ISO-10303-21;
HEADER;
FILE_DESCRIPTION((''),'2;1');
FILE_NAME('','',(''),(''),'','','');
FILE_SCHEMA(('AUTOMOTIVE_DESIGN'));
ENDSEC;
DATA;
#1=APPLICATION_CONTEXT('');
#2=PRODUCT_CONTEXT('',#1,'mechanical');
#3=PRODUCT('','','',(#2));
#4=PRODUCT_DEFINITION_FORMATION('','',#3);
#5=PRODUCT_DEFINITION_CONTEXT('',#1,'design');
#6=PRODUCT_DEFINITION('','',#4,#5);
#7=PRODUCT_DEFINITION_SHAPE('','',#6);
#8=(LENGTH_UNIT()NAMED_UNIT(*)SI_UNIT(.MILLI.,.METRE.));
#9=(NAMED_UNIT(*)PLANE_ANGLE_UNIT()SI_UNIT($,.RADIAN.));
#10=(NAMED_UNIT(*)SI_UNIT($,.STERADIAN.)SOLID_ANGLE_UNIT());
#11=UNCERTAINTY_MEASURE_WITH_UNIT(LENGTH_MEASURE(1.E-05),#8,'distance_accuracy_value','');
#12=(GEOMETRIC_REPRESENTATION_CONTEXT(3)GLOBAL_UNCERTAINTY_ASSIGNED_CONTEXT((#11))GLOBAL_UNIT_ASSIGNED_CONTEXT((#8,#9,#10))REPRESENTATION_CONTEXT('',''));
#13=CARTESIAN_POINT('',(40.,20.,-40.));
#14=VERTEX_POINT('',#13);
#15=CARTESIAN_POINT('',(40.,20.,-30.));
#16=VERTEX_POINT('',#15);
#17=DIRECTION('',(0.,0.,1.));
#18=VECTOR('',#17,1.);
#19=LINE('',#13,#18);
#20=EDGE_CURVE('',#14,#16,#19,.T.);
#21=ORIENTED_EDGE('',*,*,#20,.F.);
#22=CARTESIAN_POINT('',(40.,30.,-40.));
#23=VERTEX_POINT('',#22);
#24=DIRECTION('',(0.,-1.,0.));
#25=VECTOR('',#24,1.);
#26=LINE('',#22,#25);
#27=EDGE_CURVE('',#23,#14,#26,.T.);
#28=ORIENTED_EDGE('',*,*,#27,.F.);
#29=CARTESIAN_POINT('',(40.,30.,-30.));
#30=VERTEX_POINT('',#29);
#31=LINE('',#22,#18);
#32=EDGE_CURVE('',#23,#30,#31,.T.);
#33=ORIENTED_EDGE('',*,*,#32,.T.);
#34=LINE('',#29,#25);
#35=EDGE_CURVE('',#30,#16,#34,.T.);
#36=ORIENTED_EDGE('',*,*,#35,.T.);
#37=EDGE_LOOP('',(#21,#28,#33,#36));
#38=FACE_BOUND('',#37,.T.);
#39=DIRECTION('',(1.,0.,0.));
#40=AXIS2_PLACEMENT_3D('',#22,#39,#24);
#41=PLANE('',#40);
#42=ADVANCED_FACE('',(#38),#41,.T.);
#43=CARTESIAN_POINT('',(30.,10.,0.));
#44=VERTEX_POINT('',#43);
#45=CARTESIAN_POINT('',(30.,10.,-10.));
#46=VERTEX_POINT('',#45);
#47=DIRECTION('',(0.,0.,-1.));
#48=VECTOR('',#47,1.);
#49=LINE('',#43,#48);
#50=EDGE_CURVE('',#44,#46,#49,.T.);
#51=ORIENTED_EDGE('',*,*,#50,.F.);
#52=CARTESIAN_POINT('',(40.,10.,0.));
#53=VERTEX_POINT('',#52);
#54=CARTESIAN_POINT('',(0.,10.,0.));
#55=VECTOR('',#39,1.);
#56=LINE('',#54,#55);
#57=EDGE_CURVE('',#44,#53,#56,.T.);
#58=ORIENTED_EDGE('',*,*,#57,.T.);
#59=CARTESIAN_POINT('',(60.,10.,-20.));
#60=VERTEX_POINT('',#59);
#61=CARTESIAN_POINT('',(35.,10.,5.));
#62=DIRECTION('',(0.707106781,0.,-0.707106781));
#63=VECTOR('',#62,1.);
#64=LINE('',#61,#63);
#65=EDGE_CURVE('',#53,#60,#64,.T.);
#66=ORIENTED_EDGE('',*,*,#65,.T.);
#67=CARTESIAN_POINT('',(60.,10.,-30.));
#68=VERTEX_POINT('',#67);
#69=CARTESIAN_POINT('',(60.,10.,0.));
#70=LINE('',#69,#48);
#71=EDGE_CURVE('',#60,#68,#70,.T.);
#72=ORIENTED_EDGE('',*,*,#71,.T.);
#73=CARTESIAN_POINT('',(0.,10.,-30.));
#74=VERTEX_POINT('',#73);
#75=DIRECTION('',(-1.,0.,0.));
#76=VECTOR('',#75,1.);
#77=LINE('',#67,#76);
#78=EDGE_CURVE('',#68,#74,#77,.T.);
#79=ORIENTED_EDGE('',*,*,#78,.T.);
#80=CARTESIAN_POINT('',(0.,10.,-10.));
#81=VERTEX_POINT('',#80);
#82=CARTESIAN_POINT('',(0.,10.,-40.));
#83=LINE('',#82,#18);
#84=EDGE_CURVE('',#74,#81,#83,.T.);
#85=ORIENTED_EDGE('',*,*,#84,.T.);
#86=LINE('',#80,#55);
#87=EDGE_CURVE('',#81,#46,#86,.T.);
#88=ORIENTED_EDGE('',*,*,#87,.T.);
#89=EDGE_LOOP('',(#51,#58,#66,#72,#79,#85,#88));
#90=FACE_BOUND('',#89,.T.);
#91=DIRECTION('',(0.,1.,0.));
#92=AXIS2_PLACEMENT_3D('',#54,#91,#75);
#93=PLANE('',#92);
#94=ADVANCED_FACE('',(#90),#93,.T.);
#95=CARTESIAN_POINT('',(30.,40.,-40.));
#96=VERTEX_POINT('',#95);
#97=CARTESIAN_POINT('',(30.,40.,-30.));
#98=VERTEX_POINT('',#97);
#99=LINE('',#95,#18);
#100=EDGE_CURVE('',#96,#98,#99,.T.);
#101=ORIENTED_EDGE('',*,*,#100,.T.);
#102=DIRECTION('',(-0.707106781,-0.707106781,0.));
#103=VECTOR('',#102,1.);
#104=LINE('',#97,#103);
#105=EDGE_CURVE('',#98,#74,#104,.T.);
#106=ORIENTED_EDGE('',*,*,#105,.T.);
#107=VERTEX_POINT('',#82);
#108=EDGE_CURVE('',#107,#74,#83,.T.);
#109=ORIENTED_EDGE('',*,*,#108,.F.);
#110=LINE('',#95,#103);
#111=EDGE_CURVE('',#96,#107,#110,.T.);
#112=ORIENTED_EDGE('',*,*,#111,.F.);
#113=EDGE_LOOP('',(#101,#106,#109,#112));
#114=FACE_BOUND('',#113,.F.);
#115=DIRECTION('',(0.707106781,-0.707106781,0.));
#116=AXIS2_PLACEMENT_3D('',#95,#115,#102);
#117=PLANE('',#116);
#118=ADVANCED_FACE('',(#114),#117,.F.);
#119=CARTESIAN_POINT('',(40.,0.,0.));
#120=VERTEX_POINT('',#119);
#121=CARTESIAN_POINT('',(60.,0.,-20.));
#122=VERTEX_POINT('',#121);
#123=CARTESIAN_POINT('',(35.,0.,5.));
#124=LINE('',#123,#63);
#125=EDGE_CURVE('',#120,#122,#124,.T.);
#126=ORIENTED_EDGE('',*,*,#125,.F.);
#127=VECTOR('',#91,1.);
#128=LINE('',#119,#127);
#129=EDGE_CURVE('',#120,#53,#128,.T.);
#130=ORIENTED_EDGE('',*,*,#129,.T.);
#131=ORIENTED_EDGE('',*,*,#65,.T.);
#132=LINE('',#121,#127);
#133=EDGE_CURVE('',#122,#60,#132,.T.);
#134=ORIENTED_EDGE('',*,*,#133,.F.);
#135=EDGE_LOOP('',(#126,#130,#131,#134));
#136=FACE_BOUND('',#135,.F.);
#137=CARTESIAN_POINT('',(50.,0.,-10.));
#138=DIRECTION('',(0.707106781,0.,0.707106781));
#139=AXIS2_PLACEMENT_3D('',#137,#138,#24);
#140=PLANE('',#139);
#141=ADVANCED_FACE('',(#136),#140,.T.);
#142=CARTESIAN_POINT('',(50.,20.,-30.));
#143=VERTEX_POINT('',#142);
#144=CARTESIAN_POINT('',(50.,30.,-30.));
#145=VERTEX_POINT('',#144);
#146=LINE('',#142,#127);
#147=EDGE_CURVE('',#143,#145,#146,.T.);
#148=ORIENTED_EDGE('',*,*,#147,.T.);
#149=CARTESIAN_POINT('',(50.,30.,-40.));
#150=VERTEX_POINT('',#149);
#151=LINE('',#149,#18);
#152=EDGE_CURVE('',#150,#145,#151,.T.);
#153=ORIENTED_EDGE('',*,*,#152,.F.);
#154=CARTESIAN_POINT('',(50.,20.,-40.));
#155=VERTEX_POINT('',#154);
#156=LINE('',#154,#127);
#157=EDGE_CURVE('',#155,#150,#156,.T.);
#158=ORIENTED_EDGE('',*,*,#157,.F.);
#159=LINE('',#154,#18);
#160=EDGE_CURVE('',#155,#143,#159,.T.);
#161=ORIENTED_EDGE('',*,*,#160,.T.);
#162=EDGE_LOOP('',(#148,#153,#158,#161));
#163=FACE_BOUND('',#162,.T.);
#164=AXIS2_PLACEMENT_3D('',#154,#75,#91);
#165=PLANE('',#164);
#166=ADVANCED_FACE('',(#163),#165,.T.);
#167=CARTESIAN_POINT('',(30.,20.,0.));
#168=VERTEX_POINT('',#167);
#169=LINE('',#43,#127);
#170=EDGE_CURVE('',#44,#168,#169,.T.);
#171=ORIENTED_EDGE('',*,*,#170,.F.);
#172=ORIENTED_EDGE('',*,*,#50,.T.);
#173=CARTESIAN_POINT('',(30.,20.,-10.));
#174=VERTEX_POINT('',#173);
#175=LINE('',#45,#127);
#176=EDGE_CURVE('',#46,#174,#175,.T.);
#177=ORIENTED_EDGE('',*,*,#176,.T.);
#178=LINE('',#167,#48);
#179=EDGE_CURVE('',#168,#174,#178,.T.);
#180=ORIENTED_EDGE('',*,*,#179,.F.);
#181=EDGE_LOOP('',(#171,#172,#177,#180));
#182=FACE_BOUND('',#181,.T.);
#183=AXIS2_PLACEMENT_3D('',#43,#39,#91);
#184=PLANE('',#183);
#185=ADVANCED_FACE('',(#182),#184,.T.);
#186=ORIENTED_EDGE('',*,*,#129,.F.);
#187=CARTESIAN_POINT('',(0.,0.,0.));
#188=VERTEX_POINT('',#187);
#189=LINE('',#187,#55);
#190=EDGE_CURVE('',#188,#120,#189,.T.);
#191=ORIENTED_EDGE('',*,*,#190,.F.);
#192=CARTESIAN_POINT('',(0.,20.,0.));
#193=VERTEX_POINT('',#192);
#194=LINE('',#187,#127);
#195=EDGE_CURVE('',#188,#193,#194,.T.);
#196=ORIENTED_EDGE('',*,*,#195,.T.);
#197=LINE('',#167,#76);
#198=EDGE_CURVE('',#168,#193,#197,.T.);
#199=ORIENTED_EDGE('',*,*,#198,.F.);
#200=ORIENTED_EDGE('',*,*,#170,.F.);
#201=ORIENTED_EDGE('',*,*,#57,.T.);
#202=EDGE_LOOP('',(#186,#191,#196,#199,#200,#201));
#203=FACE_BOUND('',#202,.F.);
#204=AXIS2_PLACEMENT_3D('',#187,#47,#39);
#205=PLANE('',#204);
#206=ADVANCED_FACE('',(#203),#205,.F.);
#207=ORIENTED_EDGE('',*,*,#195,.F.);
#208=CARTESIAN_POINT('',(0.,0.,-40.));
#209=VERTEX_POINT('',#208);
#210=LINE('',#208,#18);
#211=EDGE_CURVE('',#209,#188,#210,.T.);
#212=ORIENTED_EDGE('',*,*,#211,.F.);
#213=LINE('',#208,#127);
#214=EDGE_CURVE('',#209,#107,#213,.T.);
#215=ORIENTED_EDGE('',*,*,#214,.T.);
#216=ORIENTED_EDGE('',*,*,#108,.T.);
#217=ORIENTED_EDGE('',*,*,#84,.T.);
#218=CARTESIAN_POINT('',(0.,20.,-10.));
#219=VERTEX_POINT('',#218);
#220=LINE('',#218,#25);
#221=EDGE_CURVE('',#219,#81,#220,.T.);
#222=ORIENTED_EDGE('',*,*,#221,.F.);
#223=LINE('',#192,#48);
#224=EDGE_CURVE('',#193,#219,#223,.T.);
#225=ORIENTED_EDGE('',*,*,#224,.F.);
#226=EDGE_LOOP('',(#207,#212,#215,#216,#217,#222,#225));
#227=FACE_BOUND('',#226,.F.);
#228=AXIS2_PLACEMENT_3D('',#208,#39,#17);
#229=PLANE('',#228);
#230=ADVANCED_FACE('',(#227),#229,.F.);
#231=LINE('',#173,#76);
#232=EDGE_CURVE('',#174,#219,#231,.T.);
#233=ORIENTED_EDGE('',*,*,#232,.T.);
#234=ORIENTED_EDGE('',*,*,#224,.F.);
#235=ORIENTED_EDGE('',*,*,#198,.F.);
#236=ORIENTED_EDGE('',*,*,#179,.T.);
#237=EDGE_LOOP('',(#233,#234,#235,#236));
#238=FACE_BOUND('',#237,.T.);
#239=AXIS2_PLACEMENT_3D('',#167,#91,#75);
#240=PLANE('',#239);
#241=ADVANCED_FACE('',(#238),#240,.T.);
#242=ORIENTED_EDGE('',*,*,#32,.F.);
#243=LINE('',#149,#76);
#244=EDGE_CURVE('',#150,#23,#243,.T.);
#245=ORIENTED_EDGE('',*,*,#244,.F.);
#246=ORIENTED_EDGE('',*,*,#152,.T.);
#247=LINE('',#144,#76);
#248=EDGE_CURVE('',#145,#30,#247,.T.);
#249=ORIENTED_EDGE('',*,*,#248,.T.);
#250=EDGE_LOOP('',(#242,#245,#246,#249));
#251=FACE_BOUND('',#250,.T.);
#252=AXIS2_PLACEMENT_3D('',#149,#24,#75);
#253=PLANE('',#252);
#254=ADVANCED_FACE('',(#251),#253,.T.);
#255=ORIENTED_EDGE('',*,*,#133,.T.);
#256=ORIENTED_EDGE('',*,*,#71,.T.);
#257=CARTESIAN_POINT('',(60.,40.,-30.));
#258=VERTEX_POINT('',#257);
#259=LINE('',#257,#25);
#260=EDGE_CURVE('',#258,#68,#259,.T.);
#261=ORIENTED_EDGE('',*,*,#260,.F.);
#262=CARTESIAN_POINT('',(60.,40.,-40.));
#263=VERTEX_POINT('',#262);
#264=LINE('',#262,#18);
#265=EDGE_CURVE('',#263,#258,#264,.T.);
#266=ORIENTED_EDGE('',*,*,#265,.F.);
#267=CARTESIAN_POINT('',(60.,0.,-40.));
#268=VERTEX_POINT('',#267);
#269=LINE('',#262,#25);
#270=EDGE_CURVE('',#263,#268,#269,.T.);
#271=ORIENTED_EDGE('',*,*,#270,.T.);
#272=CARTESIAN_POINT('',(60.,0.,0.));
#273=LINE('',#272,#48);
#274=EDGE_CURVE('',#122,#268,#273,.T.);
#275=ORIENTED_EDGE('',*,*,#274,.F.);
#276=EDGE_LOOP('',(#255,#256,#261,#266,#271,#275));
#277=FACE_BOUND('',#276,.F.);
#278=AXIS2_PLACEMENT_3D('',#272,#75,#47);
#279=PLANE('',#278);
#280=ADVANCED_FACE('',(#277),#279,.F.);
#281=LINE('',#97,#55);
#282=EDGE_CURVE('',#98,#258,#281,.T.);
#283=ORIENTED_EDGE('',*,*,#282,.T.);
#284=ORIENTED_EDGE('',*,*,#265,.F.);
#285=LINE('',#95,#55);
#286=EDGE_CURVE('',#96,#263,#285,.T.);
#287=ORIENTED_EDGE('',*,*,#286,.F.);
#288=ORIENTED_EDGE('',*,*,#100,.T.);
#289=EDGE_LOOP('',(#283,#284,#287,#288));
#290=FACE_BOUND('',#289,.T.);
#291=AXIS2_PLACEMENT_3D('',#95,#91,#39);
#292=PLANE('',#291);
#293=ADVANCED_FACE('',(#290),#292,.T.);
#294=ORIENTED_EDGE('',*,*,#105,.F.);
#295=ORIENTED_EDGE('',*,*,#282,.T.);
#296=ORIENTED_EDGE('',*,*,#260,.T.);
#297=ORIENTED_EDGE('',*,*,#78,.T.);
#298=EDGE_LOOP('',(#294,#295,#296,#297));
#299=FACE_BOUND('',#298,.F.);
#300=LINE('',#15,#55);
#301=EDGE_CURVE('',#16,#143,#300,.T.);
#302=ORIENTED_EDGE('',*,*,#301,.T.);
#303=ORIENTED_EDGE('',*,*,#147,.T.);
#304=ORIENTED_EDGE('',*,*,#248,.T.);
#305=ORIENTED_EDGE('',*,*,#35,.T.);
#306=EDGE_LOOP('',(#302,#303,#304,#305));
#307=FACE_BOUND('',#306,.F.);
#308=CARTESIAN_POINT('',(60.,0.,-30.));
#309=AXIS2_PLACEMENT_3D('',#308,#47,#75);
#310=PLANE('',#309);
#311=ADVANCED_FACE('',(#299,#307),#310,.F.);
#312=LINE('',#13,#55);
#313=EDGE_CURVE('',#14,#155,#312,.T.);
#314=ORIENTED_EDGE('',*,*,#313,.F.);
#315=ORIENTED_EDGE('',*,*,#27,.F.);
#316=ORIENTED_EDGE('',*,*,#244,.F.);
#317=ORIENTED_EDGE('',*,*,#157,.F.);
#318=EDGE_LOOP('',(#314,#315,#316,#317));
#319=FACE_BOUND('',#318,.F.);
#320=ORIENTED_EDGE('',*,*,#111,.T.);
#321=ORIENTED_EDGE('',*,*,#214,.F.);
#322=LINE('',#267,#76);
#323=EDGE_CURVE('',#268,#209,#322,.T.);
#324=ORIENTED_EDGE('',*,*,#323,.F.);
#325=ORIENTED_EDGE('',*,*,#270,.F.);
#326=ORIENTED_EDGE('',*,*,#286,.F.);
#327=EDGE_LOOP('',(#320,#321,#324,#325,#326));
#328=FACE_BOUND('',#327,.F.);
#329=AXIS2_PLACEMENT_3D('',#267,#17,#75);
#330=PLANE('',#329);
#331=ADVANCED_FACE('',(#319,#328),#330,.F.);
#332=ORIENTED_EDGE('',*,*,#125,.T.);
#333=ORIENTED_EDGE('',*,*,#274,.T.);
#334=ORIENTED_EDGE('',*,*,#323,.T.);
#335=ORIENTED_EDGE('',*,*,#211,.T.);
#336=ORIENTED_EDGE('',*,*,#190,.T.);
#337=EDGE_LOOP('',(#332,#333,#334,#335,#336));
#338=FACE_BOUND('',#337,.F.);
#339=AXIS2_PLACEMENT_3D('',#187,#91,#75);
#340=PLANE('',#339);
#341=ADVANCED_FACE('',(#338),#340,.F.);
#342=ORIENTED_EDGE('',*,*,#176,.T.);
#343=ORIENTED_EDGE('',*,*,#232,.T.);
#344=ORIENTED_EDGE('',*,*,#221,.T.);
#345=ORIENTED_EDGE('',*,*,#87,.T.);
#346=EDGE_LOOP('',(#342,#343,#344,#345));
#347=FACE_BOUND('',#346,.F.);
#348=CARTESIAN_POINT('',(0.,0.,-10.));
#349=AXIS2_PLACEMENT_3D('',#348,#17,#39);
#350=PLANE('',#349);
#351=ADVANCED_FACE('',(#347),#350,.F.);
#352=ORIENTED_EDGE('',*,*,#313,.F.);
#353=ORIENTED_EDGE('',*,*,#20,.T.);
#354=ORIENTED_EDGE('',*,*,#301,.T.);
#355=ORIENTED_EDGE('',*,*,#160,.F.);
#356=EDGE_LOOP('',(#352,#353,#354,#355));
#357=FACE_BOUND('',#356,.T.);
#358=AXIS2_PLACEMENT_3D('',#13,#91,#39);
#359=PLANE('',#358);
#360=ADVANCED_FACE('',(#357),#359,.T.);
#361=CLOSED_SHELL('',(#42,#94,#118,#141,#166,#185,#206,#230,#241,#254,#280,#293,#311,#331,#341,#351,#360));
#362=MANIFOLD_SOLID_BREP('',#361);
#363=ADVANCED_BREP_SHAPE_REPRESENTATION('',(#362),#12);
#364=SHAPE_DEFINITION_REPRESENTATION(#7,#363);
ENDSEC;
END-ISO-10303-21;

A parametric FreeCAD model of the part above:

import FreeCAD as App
import Part
import Sketcher


def edges_at(feature, points):
    """Names of the edges that pass closest to the given points."""
    edges = feature.Shape.Edges
    near = lambda p: min(range(len(edges)), key=lambda i: edges[i].distToShape(Part.Vertex(*p))[0])
    return sorted({f"Edge{near(p) + 1}" for p in points})

doc = App.newDocument("Part")
body = doc.addObject("PartDesign::Body", "Body")

# Sketch on XZ plane
sketch1 = body.newObject("Sketcher::SketchObject", "Sketch")
sketch1.AttachmentSupport = (doc.getObject("XZ_Plane"), [""])
sketch1.MapMode = "FlatFace"
sketch1.addGeometry([
    Part.LineSegment(App.Vector(0, -40, 0), App.Vector(0, 0, 0)),
    Part.LineSegment(App.Vector(0, 0, 0), App.Vector(60, 0, 0)),
    Part.LineSegment(App.Vector(60, 0, 0), App.Vector(60, -40, 0)),
    Part.LineSegment(App.Vector(60, -40, 0), App.Vector(0, -40, 0)),
], False)
sketch1.addConstraint([
    Sketcher.Constraint("Coincident", 0, 2, 1, 1),
    Sketcher.Constraint("Coincident", 1, 2, 2, 1),
    Sketcher.Constraint("Coincident", 2, 2, 3, 1),
    Sketcher.Constraint("Coincident", 3, 2, 0, 1),
    Sketcher.Constraint("Vertical", 0),
    Sketcher.Constraint("Horizontal", 1),
    Sketcher.Constraint("Vertical", 2),
    Sketcher.Constraint("Horizontal", 3),
    Sketcher.Constraint("Coincident", 0, 2, -1, 1),
    Sketcher.Constraint("DistanceX", 1, 1, 1, 2, 60.0),
    Sketcher.Constraint("DistanceY", 0, 1, 0, 2, 40.0),
])
pad1 = body.newObject("PartDesign::Pad", "Pad")
pad1.Profile = sketch1
pad1.Length = 10
pad1.Reversed = True

# Sketch on XY plane
sketch2 = body.newObject("Sketcher::SketchObject", "Sketch001")
sketch2.AttachmentSupport = (doc.getObject("XY_Plane"), [""])
sketch2.MapMode = "FlatFace"
sketch2.addGeometry([
    Part.LineSegment(App.Vector(0, 20, 0), App.Vector(0, 10, 0)),
    Part.LineSegment(App.Vector(0, 10, 0), App.Vector(30, 10, 0)),
    Part.LineSegment(App.Vector(30, 10, 0), App.Vector(30, 20, 0)),
    Part.LineSegment(App.Vector(30, 20, 0), App.Vector(0, 20, 0)),
], False)
sketch2.addConstraint([
    Sketcher.Constraint("Coincident", 0, 2, 1, 1),
    Sketcher.Constraint("Coincident", 1, 2, 2, 1),
    Sketcher.Constraint("Coincident", 2, 2, 3, 1),
    Sketcher.Constraint("Coincident", 3, 2, 0, 1),
    Sketcher.Constraint("Vertical", 0),
    Sketcher.Constraint("Horizontal", 1),
    Sketcher.Constraint("Vertical", 2),
    Sketcher.Constraint("Horizontal", 3),
    Sketcher.Constraint("PointOnObject", 0, 2, -2),
    Sketcher.Constraint("DistanceX", 1, 1, 1, 2, 30.0),
    Sketcher.Constraint("DistanceY", 0, 2, 0, 1, 10.0),
    Sketcher.Constraint("DistanceY", -1, 1, 0, 2, 10.0),
])
pad2 = body.newObject("PartDesign::Pad", "Pad001")
pad2.Profile = sketch2
pad2.Length = 10
pad2.Reversed = True

# Sketch on XY plane
sketch3 = body.newObject("Sketcher::SketchObject", "Sketch002")
sketch3.AttachmentSupport = (doc.getObject("XY_Plane"), [""])
sketch3.MapMode = "FlatFace"
sketch3.AttachmentOffset = App.Placement(App.Vector(0, 0, -40), App.Rotation())
sketch3.addGeometry([
    Part.LineSegment(App.Vector(60, 40, 0), App.Vector(60, 10, 0)),  # 0
    Part.LineSegment(App.Vector(60, 10, 0), App.Vector(0, 10, 0)),  # 1
    Part.LineSegment(App.Vector(0, 10, 0), App.Vector(30, 40, 0)),  # 2
    Part.LineSegment(App.Vector(30, 40, 0), App.Vector(60, 40, 0)),  # 3
    Part.LineSegment(App.Vector(50, 20, 0), App.Vector(50, 30, 0)),  # 4
    Part.LineSegment(App.Vector(50, 30, 0), App.Vector(40, 30, 0)),  # 5
    Part.LineSegment(App.Vector(40, 30, 0), App.Vector(40, 20, 0)),  # 6
    Part.LineSegment(App.Vector(40, 20, 0), App.Vector(50, 20, 0)),  # 7
], False)
sketch3.addConstraint([
    Sketcher.Constraint("Coincident", 0, 2, 1, 1),
    Sketcher.Constraint("Coincident", 1, 2, 2, 1),
    Sketcher.Constraint("Coincident", 2, 2, 3, 1),
    Sketcher.Constraint("Coincident", 3, 2, 0, 1),
    Sketcher.Constraint("Coincident", 4, 2, 5, 1),
    Sketcher.Constraint("Coincident", 5, 2, 6, 1),
    Sketcher.Constraint("Coincident", 6, 2, 7, 1),
    Sketcher.Constraint("Coincident", 7, 2, 4, 1),
    Sketcher.Constraint("Vertical", 0),
    Sketcher.Constraint("Horizontal", 1),
    Sketcher.Constraint("Horizontal", 3),
    Sketcher.Constraint("Vertical", 4),
    Sketcher.Constraint("Horizontal", 5),
    Sketcher.Constraint("Vertical", 6),
    Sketcher.Constraint("Horizontal", 7),
    Sketcher.Constraint("PointOnObject", 1, 2, -2),
    Sketcher.Constraint("Equal", 3, 0),
    Sketcher.Constraint("Equal", 7, 4),
    Sketcher.Constraint("DistanceX", 3, 1, 3, 2, 30.0),
    Sketcher.Constraint("DistanceX", 5, 2, 5, 1, 10.0),
    Sketcher.Constraint("DistanceY", -1, 1, 0, 2, 10.0),
    Sketcher.Constraint("DistanceX", -1, 1, 2, 2, 30.0),
    Sketcher.Constraint("DistanceY", -1, 1, 4, 2, 30.0),
    Sketcher.Constraint("DistanceX", 4, 2, 3, 2, 10.0),
])
pad3 = body.newObject("PartDesign::Pad", "Pad002")
pad3.Profile = sketch3
pad3.Length = 10
doc.recompute()

chamfer = body.newObject("PartDesign::Chamfer", "Chamfer")
chamfer.Base = (pad3, edges_at(pad3, [(60, 5, 0)]))
chamfer.Size = 20

doc.recompute()
